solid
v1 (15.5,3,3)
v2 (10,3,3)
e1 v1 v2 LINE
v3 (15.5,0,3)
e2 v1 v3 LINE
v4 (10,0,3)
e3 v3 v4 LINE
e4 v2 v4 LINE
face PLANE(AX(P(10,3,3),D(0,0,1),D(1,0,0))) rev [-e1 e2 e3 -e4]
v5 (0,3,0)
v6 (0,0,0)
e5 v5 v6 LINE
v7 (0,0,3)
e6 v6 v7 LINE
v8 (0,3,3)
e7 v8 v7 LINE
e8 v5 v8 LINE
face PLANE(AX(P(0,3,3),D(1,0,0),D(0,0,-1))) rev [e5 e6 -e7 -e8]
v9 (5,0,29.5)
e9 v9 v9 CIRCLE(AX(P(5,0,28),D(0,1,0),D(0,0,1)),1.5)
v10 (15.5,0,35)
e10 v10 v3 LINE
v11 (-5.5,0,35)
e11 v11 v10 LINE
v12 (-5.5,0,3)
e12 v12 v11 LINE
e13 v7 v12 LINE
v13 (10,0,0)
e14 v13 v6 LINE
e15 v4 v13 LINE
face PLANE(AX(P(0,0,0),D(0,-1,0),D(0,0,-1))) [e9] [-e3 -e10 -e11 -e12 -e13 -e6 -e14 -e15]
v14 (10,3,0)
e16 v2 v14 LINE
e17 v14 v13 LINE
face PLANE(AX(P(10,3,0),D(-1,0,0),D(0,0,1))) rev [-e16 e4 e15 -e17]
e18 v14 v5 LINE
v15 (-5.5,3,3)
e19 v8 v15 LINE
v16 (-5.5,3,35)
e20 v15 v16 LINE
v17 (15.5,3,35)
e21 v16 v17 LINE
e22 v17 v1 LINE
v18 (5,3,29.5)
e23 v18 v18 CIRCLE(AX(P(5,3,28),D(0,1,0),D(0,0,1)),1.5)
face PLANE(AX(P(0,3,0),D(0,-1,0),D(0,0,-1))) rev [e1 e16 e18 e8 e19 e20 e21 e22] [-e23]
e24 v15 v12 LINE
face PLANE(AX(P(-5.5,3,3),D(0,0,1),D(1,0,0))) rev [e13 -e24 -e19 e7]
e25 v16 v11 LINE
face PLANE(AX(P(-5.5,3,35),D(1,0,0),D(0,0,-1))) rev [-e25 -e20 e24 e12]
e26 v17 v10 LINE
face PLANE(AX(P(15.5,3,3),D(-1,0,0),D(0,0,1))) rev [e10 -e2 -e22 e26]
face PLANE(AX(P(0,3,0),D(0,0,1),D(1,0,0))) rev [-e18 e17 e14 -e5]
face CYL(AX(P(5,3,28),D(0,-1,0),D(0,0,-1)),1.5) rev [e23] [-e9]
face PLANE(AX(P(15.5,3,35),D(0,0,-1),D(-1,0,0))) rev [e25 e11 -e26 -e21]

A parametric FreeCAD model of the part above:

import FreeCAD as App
import Part
import Sketcher
from FreeCAD import Vector


def add_polygon(sketch, points):
    """Adds a closed chain of lines whose ends are joined by coincident constraints."""
    first, n = sketch.GeometryCount, len(points)
    for a, b in zip(points, points[1:] + points[:1]):
        sketch.addGeometry(Part.LineSegment(App.Vector(*a, 0), App.Vector(*b, 0)), False)
    for i in range(n):
        sketch.addConstraint(Sketcher.Constraint("Coincident", first + i, 2, first + (i + 1) % n, 1))

doc = App.newDocument("Part")
body = doc.addObject("PartDesign::Body", "Body")

# Sketch on XZ plane
sketch1 = body.newObject("Sketcher::SketchObject", "Sketch")
sketch1.AttachmentSupport = (doc.getObject("XZ_Plane"), [""])
sketch1.MapMode = "FlatFace"
add_polygon(sketch1, [(10, 0), (0, 0), (0, 3), (-5.5, 3), (-5.5, 35), (15.5, 35), (15.5, 3), (10, 3)])  # lines 0-7
sketch1.addGeometry(Part.Circle(Vector(5, 28, 0), Vector(0, 0, 1), 1.5), False)  # 8
sketch1.addConstraint(Sketcher.Constraint("Horizontal", 0))
sketch1.addConstraint(Sketcher.Constraint("Vertical", 1))
sketch1.addConstraint(Sketcher.Constraint("Horizontal", 2))
sketch1.addConstraint(Sketcher.Constraint("Vertical", 3))
sketch1.addConstraint(Sketcher.Constraint("Horizontal", 4))
sketch1.addConstraint(Sketcher.Constraint("Vertical", 5))
sketch1.addConstraint(Sketcher.Constraint("Horizontal", 6))
sketch1.addConstraint(Sketcher.Constraint("Vertical", 7))
sketch1.addConstraint(Sketcher.Constraint("Coincident", 0, 2, -1, 1))
sketch1.addConstraint(Sketcher.Constraint("Horizontal", 2, 2, 5, 2))
sketch1.addConstraint(Sketcher.Constraint("Equal", 2, 6))
sketch1.addConstraint(Sketcher.Constraint("Diameter", 8, 3.0))
sketch1.addConstraint(Sketcher.Constraint("DistanceX", 0, 2, 0, 1, 10.0))
sketch1.addConstraint(Sketcher.Constraint("DistanceX", 4, 1, 4, 2, 21.0))
sketch1.addConstraint(Sketcher.Constraint("DistanceY", 1, 1, 1, 2, 3.0))
sketch1.addConstraint(Sketcher.Constraint("DistanceY", 3, 1, 3, 2, 32.0))
sketch1.addConstraint(Sketcher.Constraint("DistanceX", -1, 1, 8, 3, 5.0))
sketch1.addConstraint(Sketcher.Constraint("DistanceY", -1, 1, 8, 3, 28.0))
pad1 = body.newObject("PartDesign::Pad", "Pad")
pad1.Profile = sketch1
pad1.Length = 3
pad1.Reversed = True

doc.recompute()
